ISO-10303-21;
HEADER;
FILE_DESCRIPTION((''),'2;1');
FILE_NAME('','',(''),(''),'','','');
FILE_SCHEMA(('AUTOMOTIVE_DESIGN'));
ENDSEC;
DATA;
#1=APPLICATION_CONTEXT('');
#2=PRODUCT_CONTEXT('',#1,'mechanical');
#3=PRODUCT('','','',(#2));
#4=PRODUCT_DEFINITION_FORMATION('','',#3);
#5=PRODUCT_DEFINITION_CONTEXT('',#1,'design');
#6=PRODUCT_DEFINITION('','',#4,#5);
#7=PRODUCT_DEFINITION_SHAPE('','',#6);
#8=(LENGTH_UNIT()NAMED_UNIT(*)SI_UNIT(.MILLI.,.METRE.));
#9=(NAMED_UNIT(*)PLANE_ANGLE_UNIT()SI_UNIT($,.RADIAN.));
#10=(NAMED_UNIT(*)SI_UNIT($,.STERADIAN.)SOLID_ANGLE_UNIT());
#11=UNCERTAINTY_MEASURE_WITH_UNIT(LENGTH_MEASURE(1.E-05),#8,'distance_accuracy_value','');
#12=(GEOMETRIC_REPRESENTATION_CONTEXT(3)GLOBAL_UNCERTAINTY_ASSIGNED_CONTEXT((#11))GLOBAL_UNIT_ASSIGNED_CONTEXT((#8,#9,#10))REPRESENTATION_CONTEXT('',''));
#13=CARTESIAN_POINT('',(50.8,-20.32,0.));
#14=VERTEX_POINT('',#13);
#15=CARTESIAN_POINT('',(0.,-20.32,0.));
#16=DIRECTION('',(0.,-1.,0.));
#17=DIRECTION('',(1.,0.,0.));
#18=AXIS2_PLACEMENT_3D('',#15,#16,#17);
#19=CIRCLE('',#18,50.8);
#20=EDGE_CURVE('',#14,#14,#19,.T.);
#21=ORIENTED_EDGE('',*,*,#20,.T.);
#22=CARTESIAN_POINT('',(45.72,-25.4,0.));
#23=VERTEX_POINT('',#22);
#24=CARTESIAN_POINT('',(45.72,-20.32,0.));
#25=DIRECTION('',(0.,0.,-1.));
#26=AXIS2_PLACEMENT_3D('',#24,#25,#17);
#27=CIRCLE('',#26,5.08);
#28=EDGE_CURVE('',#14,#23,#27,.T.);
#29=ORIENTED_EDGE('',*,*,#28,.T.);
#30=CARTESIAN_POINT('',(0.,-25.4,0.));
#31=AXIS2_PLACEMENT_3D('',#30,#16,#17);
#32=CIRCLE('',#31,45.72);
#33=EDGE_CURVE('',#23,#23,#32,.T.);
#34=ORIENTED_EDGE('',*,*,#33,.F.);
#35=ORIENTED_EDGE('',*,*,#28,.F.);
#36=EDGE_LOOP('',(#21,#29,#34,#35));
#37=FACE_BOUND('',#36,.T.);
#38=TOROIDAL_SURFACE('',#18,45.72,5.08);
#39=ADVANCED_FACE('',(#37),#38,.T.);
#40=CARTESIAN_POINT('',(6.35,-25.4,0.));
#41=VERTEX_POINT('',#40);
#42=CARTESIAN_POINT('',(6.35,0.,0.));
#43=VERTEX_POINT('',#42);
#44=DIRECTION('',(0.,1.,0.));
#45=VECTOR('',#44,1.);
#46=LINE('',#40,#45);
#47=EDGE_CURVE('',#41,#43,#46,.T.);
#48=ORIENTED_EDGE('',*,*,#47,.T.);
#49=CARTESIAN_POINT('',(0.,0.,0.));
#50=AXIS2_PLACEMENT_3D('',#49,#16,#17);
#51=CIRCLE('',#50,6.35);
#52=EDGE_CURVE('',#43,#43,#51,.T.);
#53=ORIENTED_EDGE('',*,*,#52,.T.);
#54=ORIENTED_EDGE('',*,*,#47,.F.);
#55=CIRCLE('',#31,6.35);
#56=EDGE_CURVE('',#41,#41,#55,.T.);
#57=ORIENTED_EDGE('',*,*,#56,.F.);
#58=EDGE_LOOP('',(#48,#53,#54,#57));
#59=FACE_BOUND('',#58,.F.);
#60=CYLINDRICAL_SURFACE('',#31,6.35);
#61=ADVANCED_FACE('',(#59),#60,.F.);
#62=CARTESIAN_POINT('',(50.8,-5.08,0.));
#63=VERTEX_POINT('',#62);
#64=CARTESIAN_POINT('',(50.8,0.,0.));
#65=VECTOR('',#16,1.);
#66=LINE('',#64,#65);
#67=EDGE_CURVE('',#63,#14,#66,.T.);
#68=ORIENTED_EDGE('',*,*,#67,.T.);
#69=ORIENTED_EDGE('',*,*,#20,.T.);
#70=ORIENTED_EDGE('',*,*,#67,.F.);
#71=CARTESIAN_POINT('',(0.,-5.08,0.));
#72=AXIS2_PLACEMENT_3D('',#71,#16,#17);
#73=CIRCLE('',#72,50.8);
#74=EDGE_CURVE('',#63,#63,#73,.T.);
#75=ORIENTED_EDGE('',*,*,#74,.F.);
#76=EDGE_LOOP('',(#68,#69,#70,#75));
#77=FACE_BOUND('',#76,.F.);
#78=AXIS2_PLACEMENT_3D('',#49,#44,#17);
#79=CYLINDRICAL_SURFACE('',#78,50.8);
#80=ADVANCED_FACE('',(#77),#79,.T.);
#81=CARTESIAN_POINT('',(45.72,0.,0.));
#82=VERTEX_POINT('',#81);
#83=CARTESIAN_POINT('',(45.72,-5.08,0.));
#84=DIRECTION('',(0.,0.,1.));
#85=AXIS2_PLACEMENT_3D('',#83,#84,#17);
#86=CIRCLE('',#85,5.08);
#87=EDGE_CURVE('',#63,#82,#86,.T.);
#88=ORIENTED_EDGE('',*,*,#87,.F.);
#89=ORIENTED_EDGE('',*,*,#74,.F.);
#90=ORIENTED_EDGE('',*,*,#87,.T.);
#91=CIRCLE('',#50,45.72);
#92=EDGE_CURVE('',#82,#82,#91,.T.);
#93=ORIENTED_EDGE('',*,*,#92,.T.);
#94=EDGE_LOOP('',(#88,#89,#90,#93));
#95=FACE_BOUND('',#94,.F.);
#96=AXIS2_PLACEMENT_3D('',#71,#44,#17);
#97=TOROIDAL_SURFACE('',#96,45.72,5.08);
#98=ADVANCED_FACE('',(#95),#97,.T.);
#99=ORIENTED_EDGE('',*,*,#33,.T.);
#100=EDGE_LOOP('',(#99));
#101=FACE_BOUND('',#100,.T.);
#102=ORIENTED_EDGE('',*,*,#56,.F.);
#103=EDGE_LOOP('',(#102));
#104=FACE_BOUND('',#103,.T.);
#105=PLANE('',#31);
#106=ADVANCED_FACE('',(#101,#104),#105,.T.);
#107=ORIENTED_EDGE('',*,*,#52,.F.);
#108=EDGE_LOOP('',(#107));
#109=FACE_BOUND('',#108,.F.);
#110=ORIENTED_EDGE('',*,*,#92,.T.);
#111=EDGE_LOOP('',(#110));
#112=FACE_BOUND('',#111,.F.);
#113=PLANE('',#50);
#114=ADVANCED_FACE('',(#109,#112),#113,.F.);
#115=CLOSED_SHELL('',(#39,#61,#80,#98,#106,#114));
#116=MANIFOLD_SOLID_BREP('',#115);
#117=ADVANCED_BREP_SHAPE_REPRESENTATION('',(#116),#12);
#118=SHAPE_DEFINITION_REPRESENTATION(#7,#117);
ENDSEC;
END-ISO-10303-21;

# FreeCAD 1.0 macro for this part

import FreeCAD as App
import Part
import Sketcher

V = App.Vector
Q = App.Units.Quantity


def edges_at(feature, points):
    """Names of the edges that pass closest to the given points."""
    edges = feature.Shape.Edges
    near = lambda p: min(range(len(edges)), key=lambda i: edges[i].distToShape(Part.Vertex(*p))[0])
    return sorted({f"Edge{near(p) + 1}" for p in points})

doc = App.newDocument("Part")
body = doc.addObject("PartDesign::Body", "Body")

# Sketch on XZ plane
sketch1 = body.newObject("Sketcher::SketchObject", "Sketch")
sketch1.AttachmentSupport = (doc.getObject("XZ_Plane"), [""])
sketch1.MapMode = "FlatFace"
sketch1.addGeometry(Part.Circle(V(0, 0, 0), V(0, 0, 1), 50.8), False)
sketch1.addConstraint([
    Sketcher.Constraint("Coincident", 0, 3, -1, 1),
    Sketcher.Constraint("Diameter", 0, Q("4 in")),
])
pad1 = body.newObject("PartDesign::Pad", "Pad")
pad1.Profile = sketch1
pad1.Length = Q("1 in")
doc.recompute()

fillet = body.newObject("PartDesign::Fillet", "Fillet")
fillet.Base = (pad1, edges_at(pad1, [(-50.8, -25.4, 0), (-50.8, 0, 0)]))
fillet.Radius = Q("0.2 in")

# Sketch on XZ plane
sketch2 = body.newObject("Sketcher::SketchObject", "Sketch001")
sketch2.AttachmentSupport = (doc.getObject("XZ_Plane"), [""])
sketch2.MapMode = "FlatFace"
sketch2.AttachmentOffset = App.Placement(V(0, 0, 1 * 25.4), App.Rotation())
sketch2.addGeometry(Part.Circle(V(0, 0, 0), V(0, 0, 1), 6.35), False)
sketch2.addConstraint([
    Sketcher.Constraint("Coincident", 0, 3, -1, 1),
    Sketcher.Constraint("Diameter", 0, Q("0.5 in")),
])
pocket1 = body.newObject("PartDesign::Pocket", "Pocket")
pocket1.Profile = sketch2
pocket1.Type = "ThroughAll"

doc.recompute()
